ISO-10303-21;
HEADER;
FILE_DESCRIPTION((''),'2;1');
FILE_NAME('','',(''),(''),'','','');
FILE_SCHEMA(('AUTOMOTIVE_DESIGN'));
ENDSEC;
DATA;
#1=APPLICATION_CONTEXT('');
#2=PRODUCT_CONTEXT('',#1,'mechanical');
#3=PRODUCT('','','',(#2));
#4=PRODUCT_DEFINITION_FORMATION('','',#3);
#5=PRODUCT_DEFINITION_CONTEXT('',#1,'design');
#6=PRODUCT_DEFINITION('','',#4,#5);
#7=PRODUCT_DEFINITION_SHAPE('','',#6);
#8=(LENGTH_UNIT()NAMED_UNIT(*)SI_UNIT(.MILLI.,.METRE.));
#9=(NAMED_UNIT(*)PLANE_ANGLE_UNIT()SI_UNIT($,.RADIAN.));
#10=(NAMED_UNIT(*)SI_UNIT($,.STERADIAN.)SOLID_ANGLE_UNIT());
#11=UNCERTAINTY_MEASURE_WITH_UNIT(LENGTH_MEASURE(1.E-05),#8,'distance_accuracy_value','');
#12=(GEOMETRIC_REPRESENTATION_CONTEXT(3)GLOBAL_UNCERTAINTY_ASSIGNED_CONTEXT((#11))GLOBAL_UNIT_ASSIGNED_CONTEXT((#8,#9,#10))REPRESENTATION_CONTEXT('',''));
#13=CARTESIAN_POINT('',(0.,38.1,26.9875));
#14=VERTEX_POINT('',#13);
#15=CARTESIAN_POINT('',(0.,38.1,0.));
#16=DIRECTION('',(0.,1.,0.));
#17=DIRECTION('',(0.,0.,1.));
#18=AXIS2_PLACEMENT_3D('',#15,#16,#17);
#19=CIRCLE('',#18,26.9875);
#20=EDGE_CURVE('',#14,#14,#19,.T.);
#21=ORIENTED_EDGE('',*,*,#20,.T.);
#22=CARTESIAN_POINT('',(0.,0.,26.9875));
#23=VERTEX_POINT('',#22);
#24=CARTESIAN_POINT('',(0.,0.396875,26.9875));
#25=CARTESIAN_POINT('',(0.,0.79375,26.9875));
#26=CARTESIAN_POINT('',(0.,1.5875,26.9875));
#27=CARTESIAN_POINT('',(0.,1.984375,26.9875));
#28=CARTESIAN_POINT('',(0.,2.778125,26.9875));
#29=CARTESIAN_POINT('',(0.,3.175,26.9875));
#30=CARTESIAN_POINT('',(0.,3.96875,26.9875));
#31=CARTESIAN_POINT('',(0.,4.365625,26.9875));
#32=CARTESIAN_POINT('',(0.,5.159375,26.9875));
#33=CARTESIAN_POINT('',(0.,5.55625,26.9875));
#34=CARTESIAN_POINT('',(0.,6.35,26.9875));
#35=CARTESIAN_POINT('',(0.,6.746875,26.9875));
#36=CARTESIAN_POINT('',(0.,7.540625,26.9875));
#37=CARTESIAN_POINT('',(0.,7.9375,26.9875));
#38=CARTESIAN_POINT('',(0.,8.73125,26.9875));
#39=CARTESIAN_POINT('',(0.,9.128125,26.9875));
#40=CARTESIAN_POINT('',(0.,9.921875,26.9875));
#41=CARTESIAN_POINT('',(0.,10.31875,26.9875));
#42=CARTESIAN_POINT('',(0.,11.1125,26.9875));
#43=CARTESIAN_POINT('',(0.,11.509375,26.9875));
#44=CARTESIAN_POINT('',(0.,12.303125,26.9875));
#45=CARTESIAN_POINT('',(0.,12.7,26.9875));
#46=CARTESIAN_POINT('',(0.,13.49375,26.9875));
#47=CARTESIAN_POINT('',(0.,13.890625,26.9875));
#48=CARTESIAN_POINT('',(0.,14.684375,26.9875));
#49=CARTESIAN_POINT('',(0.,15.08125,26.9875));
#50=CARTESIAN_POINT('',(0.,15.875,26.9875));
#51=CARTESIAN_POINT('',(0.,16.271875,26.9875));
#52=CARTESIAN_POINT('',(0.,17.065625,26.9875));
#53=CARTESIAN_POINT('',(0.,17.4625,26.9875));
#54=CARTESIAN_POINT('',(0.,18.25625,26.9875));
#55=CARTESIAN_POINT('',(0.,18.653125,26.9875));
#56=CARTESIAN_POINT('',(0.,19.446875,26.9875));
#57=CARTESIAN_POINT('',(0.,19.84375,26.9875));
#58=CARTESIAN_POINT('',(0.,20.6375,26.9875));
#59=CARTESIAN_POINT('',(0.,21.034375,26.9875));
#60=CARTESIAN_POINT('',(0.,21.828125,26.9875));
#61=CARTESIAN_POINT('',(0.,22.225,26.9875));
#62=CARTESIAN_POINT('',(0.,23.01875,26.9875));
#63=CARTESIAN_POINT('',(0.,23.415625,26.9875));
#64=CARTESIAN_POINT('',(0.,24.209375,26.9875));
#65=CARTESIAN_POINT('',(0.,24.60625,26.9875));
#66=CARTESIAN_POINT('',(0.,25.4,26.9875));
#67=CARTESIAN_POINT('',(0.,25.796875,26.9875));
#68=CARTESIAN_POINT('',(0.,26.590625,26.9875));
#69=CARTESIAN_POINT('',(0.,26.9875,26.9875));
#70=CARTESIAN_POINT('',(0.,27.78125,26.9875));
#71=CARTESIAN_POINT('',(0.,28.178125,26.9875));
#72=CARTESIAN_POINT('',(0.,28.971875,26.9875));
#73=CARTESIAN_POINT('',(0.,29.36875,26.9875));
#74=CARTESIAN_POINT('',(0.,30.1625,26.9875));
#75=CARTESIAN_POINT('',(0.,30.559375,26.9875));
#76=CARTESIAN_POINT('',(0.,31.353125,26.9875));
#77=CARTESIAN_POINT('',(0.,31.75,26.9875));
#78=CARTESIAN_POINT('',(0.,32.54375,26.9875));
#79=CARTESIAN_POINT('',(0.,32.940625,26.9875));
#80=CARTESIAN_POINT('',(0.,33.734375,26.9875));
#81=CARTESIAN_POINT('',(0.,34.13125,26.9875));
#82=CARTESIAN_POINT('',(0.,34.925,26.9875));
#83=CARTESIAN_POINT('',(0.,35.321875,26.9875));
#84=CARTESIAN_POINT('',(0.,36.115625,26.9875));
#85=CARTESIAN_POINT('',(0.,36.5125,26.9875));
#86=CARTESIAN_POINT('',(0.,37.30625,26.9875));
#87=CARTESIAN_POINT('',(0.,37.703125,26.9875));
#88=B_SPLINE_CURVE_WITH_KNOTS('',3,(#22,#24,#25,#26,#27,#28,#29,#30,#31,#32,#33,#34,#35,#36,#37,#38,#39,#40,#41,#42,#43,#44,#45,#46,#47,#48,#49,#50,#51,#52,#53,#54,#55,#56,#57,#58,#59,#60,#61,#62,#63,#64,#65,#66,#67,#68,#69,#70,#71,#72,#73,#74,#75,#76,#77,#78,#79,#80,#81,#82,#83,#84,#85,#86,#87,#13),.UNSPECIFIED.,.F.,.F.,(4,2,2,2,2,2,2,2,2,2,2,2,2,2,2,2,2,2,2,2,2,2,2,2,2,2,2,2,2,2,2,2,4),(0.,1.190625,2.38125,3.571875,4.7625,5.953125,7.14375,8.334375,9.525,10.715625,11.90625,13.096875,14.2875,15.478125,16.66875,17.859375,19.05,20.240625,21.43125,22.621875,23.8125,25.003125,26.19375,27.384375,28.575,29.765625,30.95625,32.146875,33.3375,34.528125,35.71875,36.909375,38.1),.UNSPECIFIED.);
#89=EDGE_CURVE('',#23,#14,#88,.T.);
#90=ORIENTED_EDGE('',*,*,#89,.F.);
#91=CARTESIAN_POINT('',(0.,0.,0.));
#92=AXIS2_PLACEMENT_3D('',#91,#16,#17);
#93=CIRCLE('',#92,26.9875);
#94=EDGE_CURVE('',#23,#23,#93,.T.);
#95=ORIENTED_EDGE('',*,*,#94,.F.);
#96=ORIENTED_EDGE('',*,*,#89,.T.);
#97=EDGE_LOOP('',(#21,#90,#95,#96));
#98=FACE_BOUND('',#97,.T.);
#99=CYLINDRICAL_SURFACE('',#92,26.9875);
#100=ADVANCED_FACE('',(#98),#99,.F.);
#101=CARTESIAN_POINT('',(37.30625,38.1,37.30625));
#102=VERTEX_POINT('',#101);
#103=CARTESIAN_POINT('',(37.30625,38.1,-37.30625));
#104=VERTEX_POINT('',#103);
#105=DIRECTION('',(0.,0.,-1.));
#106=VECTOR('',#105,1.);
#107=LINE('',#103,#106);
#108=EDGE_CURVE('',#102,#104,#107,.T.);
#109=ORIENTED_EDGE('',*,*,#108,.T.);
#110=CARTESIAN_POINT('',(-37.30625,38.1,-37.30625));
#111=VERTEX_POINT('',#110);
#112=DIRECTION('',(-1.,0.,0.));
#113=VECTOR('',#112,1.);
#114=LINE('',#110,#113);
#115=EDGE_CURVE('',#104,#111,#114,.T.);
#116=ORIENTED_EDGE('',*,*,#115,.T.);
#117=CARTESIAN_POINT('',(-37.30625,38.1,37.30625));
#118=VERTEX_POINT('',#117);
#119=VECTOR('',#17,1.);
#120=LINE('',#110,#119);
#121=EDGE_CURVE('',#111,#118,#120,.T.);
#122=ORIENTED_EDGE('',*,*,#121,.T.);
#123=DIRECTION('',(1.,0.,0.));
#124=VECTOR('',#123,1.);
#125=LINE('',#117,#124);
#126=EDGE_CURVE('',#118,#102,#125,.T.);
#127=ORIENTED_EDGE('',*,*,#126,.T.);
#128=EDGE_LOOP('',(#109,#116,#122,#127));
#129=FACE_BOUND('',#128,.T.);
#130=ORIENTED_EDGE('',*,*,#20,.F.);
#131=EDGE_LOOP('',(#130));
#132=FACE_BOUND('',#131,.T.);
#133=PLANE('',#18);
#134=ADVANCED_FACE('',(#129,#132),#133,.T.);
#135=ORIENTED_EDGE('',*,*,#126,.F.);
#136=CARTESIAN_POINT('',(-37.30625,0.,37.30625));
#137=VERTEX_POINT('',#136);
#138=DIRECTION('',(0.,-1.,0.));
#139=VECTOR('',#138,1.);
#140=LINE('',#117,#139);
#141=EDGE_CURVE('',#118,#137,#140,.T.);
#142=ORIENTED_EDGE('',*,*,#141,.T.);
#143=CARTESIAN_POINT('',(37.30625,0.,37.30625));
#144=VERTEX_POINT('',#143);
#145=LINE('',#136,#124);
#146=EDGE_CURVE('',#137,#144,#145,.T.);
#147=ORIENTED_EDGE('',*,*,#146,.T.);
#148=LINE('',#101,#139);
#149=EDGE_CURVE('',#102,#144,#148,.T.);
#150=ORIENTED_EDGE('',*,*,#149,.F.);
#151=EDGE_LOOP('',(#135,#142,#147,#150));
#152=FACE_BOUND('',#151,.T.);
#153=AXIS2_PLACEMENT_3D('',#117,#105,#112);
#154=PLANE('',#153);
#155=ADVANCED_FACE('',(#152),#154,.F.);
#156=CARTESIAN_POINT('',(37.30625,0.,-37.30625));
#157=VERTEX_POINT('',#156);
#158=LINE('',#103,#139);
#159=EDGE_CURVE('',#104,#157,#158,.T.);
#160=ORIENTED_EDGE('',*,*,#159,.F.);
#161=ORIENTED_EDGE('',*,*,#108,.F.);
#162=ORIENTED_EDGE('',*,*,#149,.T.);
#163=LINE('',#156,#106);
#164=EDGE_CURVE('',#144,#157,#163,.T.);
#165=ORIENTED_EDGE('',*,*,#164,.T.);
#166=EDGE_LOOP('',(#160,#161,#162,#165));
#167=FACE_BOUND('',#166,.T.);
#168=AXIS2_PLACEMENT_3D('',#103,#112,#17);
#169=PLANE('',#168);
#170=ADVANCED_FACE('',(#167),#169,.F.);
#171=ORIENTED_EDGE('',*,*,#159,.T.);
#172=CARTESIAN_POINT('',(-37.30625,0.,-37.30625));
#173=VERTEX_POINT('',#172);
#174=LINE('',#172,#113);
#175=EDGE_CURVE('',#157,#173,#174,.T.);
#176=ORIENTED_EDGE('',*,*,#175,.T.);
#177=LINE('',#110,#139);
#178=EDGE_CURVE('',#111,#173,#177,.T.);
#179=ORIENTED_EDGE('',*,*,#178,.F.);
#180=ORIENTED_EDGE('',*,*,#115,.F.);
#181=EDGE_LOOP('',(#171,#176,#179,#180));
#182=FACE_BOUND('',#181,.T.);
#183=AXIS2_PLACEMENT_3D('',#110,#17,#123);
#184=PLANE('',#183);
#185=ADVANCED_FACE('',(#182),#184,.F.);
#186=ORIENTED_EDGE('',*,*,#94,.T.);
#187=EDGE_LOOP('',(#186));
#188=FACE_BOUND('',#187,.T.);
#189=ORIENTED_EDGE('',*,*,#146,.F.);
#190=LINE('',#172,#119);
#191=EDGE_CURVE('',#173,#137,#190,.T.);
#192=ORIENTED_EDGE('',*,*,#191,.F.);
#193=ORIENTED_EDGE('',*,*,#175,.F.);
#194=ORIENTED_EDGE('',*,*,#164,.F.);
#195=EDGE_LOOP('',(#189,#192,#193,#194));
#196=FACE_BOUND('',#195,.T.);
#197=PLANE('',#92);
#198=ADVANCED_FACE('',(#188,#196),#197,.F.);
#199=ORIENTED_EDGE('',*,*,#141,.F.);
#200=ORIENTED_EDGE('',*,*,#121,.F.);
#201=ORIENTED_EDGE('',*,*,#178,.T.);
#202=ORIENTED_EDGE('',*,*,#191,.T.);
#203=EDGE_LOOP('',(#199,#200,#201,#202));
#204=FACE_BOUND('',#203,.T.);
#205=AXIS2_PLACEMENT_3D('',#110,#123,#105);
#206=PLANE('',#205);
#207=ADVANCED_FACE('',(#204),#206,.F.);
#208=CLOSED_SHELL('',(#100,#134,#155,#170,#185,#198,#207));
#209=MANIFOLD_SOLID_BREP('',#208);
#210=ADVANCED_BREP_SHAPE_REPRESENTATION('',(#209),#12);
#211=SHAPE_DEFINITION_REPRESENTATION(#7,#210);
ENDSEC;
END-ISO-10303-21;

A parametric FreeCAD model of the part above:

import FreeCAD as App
import Part
import Sketcher
from FreeCAD import Vector
Q = App.Units.Quantity


def add_polygon(sketch, points):
    """Adds a closed chain of lines whose ends are joined by coincident constraints."""
    first, n = sketch.GeometryCount, len(points)
    for a, b in zip(points, points[1:] + points[:1]):
        sketch.addGeometry(Part.LineSegment(App.Vector(*a, 0), App.Vector(*b, 0)), False)
    for i in range(n):
        sketch.addConstraint(Sketcher.Constraint("Coincident", first + i, 2, first + (i + 1) % n, 1))

doc = App.newDocument("Part")
body = doc.addObject("PartDesign::Body", "Body")

# Sketch on XZ plane
sketch1 = body.newObject("Sketcher::SketchObject", "Sketch")
sketch1.AttachmentSupport = (doc.getObject("XZ_Plane"), [""])
sketch1.MapMode = "FlatFace"
add_polygon(sketch1, [(-37, -37), (-37, 37), (37, 37), (37, -37)])  # lines 0-3
sketch1.addConstraint(Sketcher.Constraint("Vertical", 0))
sketch1.addConstraint(Sketcher.Constraint("Horizontal", 1))
sketch1.addConstraint(Sketcher.Constraint("Vertical", 2))
sketch1.addConstraint(Sketcher.Constraint("Horizontal", 3))
sketch1.addConstraint(Sketcher.Constraint("Symmetric", 0, 2, 2, 2, -1, 1))
sketch1.addConstraint(Sketcher.Constraint("Equal", 3, 0))
sketch1.addConstraint(Sketcher.Constraint("DistanceX", 1, 1, 1, 2, Q("2.9375 in")))
pad1 = body.newObject("PartDesign::Pad", "Pad")
pad1.Profile = sketch1
pad1.Length = Q("1.5 in")
pad1.Reversed = True

# Sketch on XZ plane
sketch2 = body.newObject("Sketcher::SketchObject", "Sketch001")
sketch2.AttachmentSupport = (doc.getObject("XZ_Plane"), [""])
sketch2.MapMode = "FlatFace"
sketch2.AttachmentOffset = App.Placement(Vector(0, 0, -1.5 * 25.4), App.Rotation())
sketch2.addGeometry(Part.Circle(Vector(0, 0, 0), Vector(0, 0, 1), 27), False)
sketch2.addConstraint(Sketcher.Constraint("Coincident", 0, 3, -1, 1))
sketch2.addConstraint(Sketcher.Constraint("Diameter", 0, Q("2.125 in")))
pocket1 = body.newObject("PartDesign::Pocket", "Pocket")
pocket1.Profile = sketch2
pocket1.Type = "ThroughAll"
pocket1.Reversed = True

doc.recompute()
